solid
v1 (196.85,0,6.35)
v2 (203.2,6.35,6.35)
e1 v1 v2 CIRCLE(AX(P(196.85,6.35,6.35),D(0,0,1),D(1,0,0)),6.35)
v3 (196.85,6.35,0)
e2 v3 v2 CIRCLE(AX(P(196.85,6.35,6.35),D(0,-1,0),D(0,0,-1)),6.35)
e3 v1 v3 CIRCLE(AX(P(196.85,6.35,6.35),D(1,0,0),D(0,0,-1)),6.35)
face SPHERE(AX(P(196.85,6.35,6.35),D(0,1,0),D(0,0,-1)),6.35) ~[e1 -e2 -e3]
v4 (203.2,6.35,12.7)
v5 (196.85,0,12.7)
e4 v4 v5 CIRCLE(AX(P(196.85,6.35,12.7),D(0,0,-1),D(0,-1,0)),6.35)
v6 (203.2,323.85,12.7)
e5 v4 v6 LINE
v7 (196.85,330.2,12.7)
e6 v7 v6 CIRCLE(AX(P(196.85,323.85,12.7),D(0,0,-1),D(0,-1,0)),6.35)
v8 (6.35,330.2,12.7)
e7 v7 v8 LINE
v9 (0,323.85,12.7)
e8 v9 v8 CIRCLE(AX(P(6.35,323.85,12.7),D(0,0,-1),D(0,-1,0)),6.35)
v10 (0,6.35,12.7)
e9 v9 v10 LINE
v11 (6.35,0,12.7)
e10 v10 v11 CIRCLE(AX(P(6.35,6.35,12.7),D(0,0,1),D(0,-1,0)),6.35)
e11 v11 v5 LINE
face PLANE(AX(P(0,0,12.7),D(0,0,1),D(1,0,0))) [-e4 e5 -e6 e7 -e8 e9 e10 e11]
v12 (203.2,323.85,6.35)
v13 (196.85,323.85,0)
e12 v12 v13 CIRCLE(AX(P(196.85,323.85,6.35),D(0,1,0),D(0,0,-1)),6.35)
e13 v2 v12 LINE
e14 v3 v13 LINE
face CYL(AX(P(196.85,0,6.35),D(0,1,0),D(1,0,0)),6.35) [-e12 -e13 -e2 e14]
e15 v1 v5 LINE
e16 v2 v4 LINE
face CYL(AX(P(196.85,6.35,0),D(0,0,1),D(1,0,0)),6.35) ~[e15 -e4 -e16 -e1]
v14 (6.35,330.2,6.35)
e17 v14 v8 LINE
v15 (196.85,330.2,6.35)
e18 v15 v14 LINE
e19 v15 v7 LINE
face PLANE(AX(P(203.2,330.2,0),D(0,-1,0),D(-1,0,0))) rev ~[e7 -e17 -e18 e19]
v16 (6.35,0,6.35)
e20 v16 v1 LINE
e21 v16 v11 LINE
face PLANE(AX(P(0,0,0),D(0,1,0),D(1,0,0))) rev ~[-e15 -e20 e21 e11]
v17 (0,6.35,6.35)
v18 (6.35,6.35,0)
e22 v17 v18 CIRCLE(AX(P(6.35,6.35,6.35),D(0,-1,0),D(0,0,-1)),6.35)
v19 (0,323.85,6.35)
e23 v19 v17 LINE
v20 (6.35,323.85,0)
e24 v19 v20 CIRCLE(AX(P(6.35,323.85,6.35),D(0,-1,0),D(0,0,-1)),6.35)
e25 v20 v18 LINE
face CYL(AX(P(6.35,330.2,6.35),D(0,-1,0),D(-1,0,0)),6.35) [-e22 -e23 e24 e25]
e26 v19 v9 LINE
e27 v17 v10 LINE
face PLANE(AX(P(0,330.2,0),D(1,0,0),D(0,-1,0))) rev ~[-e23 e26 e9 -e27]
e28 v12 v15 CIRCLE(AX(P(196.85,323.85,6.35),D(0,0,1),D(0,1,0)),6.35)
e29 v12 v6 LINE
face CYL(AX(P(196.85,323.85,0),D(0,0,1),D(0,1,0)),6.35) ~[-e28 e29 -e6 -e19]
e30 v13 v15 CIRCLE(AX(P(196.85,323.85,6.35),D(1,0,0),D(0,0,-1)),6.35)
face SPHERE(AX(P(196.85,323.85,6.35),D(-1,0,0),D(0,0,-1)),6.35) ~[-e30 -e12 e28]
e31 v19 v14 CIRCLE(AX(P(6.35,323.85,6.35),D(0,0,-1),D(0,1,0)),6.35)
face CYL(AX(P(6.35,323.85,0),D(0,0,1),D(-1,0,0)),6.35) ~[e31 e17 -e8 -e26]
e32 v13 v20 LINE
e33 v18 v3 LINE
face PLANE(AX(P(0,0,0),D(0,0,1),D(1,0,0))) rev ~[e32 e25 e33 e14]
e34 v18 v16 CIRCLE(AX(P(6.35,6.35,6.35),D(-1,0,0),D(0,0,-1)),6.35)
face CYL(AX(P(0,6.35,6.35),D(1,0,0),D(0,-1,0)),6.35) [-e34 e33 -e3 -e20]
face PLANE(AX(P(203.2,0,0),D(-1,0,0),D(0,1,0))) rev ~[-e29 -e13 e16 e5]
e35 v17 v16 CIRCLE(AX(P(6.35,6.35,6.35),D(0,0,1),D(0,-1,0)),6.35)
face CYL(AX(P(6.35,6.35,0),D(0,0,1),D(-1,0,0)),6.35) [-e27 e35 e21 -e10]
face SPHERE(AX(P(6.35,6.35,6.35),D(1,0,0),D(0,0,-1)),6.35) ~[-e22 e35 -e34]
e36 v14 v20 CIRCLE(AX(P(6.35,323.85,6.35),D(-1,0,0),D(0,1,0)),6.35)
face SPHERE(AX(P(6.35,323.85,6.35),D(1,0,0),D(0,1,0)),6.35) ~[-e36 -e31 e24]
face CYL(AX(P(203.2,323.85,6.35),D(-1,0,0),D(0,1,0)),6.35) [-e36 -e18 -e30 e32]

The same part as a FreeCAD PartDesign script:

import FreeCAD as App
import Part
import Sketcher

V = App.Vector
Q = App.Units.Quantity


def edges_at(feature, points):
    """Names of the edges that pass closest to the given points."""
    edges = feature.Shape.Edges
    near = lambda p: min(range(len(edges)), key=lambda i: edges[i].distToShape(Part.Vertex(*p))[0])
    return sorted({f"Edge{near(p) + 1}" for p in points})


def add_polygon(sketch, points):
    """Adds a closed chain of lines whose ends are joined by coincident constraints."""
    first, n = sketch.GeometryCount, len(points)
    for a, b in zip(points, points[1:] + points[:1]):
        sketch.addGeometry(Part.LineSegment(App.Vector(*a, 0), App.Vector(*b, 0)), False)
    for i in range(n):
        sketch.addConstraint(Sketcher.Constraint("Coincident", first + i, 2, first + (i + 1) % n, 1))

doc = App.newDocument("Part")
params = doc.addObject("Spreadsheet::Sheet", "Params")
for row, (alias, value) in enumerate([
    ("sketch1_width", "8 in"),
    ("sketch1_height", "13 in"),
    ("pad1_length", "0.5 in"),
    ("fillet_radius", "0.25 in"),
], start=1):
    params.set(f"A{row}", alias)
    params.set(f"B{row}", "=" + value)
    params.setAlias(f"B{row}", alias)

body = doc.addObject("PartDesign::Body", "Body")

# Sketch on XY plane
sketch1 = body.newObject("Sketcher::SketchObject", "Sketch")
sketch1.AttachmentSupport = (doc.getObject("XY_Plane"), [""])
sketch1.MapMode = "FlatFace"
add_polygon(sketch1, [(0, 330), (0, 0), (203, 0), (203, 330)])  # lines 0-3
sketch1.addConstraint([
    Sketcher.Constraint("Vertical", 0),
    Sketcher.Constraint("Horizontal", 1),
    Sketcher.Constraint("Vertical", 2),
    Sketcher.Constraint("Horizontal", 3),
    Sketcher.Constraint("Coincident", 0, 2, -1, 1),
    Sketcher.Constraint("DistanceX", 1, 1, 1, 2, Q("8 in")),
    Sketcher.Constraint("DistanceY", 0, 2, 0, 1, Q("13 in")),
])
sketch1.setExpression("Constraints[9]", "Params.sketch1_width")
sketch1.setExpression("Constraints[10]", "Params.sketch1_height")
pad1 = body.newObject("PartDesign::Pad", "Pad")
pad1.Profile = sketch1
pad1.setExpression("Length", "Params.pad1_length")
doc.recompute()

fillet = body.newObject("PartDesign::Fillet", "Fillet")
fillet.Base = (pad1, edges_at(pad1, [
    (101.6, 330.2, 0),
    (203.2, 165.1, 0),
    (203.2, 330.2, 6.35),
    (0, 330.2, 6.35),
    (101.6, 0, 0),
    (0, 165.1, 0),
    (0, 0, 6.35),
    (203.2, 0, 6.35),
]))
fillet.setExpression("Radius", "Params.fillet_radius")

doc.recompute()
